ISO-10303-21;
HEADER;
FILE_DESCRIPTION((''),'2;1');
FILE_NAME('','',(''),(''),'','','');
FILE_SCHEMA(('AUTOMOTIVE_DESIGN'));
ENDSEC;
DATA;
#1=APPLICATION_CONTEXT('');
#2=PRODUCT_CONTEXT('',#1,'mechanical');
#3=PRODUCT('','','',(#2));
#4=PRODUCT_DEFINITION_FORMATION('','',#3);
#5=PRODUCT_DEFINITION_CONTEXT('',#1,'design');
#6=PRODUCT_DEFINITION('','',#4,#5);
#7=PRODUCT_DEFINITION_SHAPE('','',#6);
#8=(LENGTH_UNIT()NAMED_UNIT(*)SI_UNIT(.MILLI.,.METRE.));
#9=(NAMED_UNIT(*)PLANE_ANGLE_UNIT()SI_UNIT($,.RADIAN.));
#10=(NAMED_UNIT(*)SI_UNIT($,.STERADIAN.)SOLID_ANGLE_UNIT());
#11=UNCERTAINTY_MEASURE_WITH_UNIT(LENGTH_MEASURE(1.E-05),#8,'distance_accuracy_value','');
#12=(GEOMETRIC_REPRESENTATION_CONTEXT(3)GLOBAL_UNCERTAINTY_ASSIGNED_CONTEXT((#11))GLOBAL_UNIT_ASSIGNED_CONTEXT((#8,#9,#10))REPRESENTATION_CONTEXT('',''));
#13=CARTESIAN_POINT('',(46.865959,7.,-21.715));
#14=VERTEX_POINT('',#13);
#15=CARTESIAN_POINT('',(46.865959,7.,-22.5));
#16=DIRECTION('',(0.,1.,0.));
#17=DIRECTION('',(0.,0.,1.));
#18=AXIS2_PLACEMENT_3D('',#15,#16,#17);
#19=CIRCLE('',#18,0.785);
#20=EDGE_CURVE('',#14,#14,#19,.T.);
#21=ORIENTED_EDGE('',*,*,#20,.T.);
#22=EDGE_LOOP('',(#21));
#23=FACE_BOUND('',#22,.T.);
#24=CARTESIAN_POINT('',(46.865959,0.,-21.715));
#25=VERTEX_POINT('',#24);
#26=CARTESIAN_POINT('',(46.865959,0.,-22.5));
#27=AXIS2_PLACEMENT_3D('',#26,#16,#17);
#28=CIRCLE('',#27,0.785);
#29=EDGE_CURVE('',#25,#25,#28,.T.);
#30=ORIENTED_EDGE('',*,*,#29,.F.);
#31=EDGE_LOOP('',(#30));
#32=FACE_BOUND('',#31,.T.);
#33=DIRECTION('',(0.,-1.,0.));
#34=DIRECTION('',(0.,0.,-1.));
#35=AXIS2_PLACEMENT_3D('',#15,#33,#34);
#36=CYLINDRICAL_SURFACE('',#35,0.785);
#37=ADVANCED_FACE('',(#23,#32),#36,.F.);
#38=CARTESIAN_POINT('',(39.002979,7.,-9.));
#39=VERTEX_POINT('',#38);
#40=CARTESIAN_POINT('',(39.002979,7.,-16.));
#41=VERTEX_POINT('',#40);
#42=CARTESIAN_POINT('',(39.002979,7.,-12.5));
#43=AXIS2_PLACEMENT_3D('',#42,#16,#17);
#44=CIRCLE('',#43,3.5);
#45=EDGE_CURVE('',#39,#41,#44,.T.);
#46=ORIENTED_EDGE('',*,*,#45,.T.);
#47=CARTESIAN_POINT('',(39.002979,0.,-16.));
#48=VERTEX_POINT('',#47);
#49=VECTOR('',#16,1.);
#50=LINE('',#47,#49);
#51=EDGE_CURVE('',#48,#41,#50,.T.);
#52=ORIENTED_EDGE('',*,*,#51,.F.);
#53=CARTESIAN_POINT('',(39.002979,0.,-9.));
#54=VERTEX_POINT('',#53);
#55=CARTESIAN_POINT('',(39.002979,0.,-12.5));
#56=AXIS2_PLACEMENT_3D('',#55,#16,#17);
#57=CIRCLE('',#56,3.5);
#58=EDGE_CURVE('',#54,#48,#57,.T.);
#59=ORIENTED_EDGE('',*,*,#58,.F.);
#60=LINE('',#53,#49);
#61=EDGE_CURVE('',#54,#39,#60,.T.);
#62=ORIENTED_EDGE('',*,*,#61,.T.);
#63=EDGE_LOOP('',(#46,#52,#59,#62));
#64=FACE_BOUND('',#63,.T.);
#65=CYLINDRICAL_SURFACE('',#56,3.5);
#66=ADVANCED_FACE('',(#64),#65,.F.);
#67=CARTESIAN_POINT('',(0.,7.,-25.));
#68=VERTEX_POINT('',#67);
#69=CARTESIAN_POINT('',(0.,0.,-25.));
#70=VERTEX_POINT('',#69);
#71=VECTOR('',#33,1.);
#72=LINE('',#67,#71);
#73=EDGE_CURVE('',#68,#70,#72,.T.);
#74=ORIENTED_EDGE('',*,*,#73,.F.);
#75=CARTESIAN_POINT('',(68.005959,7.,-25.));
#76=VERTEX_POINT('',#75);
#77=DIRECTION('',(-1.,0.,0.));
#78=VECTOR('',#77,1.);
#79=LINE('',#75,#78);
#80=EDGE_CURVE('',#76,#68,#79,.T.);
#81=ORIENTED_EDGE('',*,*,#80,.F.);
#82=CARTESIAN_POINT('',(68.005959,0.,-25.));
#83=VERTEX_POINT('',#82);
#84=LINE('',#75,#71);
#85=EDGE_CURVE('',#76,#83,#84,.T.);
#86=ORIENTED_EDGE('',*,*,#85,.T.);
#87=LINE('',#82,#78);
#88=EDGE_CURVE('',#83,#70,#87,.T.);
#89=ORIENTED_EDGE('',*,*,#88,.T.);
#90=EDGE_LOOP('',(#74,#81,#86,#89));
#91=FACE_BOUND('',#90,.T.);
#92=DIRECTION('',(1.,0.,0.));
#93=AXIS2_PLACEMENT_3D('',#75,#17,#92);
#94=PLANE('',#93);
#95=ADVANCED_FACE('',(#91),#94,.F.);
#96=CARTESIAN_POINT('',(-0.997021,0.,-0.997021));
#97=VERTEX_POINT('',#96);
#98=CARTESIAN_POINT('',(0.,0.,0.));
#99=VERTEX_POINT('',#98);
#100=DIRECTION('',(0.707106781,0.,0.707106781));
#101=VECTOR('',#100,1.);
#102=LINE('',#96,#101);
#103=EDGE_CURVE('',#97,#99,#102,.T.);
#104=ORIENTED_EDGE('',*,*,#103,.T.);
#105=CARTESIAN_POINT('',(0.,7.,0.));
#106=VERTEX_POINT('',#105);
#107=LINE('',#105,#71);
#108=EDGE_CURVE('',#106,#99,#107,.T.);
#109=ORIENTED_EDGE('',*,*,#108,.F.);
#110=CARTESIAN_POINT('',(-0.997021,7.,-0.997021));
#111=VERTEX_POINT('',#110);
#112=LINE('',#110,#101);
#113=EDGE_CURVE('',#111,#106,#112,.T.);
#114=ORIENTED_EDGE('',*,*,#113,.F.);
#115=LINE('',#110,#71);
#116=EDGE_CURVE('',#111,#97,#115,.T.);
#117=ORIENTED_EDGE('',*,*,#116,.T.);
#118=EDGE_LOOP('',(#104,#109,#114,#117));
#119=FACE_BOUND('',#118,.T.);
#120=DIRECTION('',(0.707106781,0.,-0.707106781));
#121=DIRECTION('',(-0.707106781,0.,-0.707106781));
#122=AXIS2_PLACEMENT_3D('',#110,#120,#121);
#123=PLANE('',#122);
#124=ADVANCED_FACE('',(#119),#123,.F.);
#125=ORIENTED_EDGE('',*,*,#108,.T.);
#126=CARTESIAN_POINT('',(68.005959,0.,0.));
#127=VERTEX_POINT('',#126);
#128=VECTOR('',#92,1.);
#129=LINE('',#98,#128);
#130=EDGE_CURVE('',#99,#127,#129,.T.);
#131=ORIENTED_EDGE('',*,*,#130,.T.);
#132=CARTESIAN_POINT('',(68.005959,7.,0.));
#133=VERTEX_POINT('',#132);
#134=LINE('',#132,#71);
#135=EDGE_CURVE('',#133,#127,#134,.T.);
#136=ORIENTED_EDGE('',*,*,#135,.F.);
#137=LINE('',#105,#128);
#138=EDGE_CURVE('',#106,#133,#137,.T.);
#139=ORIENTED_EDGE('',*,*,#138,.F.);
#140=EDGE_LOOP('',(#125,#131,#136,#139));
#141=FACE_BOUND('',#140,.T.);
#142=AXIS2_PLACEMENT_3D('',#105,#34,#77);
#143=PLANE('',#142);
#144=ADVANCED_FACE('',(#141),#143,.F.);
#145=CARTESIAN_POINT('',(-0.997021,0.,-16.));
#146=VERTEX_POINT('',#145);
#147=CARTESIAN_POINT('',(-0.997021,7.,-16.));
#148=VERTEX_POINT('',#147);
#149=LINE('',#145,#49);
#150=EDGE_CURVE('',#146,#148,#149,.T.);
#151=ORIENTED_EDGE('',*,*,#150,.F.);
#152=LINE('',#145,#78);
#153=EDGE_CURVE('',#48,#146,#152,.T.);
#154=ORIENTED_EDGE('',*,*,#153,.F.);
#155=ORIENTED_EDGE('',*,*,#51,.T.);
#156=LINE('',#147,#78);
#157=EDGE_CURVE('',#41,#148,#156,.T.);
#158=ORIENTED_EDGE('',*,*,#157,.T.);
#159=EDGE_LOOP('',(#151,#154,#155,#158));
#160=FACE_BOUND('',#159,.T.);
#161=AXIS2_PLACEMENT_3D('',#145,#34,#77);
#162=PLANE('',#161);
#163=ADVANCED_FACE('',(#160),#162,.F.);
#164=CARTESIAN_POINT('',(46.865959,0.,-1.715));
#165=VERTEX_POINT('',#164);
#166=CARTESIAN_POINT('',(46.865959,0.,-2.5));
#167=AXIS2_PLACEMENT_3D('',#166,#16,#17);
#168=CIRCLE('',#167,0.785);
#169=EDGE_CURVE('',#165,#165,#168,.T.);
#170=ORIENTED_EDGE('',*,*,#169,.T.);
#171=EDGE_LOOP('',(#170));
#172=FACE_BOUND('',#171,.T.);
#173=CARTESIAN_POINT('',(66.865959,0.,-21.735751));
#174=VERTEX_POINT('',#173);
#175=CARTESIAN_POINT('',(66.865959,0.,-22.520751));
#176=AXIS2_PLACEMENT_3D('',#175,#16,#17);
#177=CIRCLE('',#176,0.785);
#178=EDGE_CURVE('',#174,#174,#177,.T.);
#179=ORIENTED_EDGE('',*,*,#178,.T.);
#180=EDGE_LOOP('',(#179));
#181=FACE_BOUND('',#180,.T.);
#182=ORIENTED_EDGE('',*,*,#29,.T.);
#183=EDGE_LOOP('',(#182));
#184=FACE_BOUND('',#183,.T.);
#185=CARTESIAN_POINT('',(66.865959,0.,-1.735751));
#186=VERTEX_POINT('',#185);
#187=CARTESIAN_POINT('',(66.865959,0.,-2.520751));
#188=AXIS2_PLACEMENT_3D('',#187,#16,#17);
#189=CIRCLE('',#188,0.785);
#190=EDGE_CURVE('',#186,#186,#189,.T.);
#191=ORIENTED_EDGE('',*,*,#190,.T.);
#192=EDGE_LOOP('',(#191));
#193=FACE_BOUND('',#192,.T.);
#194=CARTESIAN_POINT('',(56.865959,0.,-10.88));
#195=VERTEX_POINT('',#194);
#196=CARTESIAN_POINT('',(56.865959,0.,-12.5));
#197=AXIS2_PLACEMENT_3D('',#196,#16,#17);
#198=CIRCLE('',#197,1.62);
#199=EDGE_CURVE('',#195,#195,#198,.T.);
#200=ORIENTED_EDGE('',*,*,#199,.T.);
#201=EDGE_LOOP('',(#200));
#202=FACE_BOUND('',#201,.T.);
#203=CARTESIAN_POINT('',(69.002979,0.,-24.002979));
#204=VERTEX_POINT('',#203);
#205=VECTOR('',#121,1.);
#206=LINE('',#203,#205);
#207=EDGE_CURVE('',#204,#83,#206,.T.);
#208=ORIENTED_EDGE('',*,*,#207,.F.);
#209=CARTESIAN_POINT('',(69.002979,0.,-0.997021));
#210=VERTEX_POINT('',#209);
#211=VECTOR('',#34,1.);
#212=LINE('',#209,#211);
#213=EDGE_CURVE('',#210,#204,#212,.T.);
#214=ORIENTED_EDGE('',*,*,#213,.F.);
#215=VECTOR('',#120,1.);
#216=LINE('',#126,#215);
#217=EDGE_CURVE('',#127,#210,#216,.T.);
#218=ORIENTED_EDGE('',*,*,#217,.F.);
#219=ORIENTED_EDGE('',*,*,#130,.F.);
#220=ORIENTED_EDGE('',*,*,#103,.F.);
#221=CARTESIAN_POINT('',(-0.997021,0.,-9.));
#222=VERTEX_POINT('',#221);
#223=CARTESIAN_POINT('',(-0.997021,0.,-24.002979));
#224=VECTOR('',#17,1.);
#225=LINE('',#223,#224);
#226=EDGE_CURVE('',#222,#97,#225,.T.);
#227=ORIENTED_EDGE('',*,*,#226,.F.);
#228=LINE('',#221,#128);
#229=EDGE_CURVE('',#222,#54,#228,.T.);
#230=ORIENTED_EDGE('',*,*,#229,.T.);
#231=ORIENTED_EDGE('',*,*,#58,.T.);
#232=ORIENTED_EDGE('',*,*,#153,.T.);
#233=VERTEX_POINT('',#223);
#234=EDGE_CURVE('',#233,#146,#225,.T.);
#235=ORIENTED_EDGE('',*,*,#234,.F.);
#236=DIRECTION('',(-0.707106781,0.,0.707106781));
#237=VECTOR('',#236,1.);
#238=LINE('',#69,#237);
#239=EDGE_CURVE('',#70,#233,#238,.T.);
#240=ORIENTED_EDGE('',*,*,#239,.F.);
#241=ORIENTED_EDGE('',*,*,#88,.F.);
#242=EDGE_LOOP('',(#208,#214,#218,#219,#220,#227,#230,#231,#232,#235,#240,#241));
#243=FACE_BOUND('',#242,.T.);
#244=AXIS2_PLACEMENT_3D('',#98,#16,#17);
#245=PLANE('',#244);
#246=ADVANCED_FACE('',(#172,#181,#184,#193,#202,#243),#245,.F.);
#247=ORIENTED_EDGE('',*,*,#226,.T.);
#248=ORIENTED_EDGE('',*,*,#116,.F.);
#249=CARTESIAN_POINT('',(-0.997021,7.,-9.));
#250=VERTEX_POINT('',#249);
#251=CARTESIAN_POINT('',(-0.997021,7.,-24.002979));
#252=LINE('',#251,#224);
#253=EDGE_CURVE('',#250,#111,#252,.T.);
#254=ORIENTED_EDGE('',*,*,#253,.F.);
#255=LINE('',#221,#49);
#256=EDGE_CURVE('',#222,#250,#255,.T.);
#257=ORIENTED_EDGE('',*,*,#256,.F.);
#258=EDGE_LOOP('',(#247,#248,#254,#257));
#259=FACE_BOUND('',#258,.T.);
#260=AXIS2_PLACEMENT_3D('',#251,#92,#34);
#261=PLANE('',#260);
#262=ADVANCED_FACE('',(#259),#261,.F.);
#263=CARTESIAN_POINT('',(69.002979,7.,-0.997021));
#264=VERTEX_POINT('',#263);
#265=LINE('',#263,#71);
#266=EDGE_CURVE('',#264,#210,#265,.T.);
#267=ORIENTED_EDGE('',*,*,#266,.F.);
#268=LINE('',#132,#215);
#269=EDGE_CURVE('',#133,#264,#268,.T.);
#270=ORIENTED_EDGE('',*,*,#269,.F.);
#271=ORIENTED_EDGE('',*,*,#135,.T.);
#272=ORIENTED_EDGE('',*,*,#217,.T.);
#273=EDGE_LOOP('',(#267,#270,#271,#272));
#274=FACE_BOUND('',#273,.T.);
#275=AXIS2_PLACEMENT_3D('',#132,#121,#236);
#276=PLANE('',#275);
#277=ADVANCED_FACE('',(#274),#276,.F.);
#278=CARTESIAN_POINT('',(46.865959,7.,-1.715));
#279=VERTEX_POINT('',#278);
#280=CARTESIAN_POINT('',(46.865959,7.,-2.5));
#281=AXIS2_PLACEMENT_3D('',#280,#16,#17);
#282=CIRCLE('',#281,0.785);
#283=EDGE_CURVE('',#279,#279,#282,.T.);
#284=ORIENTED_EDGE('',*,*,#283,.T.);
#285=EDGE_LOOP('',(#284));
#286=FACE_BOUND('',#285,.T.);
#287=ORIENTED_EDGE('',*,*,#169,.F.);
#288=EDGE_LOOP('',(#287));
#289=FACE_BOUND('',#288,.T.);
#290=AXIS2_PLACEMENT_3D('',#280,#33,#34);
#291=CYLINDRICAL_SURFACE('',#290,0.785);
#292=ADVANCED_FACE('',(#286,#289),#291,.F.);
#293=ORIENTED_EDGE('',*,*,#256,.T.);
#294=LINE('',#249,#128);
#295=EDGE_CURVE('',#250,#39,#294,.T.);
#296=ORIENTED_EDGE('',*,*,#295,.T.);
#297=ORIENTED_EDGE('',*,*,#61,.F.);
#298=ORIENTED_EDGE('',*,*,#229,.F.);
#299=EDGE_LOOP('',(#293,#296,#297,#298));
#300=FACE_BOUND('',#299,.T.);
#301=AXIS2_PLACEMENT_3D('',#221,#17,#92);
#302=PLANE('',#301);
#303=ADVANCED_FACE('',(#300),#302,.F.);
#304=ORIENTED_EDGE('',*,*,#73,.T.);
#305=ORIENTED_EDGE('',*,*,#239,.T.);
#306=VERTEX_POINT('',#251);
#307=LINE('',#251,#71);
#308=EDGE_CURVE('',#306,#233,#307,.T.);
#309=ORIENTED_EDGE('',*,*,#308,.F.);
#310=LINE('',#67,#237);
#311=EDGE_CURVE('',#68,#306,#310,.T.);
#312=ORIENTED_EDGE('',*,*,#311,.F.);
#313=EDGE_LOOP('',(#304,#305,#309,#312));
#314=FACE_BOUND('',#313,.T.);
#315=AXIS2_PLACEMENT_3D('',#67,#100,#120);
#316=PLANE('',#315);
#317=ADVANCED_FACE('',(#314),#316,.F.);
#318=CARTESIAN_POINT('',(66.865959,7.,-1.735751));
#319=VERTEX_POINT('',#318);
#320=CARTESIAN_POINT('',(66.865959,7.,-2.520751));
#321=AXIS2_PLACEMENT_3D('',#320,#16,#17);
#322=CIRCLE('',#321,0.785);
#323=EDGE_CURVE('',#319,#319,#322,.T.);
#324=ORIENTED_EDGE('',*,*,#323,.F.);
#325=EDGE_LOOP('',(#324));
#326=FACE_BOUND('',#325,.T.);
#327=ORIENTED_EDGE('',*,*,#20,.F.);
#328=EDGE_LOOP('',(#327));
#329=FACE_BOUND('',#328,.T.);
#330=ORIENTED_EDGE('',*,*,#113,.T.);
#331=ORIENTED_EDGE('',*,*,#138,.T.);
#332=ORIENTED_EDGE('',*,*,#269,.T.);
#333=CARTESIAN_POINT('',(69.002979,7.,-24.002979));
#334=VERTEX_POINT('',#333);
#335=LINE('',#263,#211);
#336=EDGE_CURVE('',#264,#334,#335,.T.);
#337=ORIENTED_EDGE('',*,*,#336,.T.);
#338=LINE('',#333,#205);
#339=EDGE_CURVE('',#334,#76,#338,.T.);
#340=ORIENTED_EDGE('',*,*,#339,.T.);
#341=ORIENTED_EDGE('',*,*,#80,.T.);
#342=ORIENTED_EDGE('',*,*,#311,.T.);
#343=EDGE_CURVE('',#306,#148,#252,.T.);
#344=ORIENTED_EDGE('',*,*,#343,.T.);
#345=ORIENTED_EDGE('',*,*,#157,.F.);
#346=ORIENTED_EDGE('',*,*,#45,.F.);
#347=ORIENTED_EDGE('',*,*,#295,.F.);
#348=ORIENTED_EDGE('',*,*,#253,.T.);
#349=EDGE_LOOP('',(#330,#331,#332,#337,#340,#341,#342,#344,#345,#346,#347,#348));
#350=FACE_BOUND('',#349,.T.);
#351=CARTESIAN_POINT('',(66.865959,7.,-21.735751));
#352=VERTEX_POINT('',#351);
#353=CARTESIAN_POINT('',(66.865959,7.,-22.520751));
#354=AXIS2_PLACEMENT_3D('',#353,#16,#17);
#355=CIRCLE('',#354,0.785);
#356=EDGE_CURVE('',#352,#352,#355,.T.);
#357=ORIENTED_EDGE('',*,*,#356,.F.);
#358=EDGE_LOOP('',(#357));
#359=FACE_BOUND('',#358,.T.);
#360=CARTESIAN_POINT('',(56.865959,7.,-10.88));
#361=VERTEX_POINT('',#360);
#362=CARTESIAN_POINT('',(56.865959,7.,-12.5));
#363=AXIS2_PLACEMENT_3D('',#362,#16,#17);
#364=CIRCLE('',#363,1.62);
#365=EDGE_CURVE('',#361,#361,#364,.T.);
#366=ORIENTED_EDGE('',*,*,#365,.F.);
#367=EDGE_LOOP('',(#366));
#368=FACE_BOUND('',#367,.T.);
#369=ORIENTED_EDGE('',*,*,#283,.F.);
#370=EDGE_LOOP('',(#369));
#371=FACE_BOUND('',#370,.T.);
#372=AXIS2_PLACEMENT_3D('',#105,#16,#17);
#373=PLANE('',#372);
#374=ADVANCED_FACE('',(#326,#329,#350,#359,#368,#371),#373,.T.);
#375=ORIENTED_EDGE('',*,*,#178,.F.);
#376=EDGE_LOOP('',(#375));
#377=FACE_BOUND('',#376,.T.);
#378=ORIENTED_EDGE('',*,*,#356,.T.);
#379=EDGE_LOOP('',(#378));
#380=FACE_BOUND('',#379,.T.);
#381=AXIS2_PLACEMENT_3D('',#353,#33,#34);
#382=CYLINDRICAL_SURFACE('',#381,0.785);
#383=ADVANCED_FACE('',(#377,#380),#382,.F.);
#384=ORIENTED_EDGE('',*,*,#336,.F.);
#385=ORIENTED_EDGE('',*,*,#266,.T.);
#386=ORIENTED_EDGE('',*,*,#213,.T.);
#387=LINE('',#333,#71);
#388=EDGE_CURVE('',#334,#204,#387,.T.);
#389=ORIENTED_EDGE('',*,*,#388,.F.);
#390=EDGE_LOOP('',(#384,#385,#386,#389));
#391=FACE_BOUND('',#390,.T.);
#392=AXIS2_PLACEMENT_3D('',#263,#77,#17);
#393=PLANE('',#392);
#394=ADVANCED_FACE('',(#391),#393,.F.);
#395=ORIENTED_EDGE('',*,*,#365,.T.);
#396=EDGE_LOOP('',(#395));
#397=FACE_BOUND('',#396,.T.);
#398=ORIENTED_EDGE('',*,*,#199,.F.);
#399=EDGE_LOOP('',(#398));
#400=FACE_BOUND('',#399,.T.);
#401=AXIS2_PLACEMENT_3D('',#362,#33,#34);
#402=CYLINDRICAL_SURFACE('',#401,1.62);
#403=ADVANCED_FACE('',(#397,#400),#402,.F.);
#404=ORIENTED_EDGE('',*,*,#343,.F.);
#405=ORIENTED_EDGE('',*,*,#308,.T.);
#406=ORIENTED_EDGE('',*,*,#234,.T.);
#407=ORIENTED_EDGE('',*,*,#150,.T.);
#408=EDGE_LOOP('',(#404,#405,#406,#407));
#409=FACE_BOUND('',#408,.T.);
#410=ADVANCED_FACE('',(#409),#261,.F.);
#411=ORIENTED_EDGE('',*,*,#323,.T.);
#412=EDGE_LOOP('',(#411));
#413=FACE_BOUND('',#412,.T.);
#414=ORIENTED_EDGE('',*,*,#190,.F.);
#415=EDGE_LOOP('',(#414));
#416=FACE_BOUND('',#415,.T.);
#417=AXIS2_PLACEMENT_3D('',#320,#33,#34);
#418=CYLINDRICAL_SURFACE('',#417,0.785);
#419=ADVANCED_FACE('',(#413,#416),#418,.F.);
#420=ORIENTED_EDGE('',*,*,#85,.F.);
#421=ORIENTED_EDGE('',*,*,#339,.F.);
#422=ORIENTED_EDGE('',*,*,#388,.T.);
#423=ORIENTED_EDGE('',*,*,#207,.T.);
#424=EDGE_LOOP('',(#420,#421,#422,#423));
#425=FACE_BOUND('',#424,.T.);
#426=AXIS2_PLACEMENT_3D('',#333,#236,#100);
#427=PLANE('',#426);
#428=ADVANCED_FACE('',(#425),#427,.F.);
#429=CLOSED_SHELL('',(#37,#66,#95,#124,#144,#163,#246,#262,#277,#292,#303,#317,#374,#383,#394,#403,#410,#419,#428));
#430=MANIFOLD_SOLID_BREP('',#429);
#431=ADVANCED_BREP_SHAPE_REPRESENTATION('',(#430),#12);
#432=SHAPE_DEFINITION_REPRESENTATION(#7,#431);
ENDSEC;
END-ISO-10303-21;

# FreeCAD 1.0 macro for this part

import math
import FreeCAD as App
import Part
import Sketcher

doc = App.newDocument("Part")
body = doc.addObject("PartDesign::Body", "Body")

# Sketch on XZ plane
sketch1 = body.newObject("Sketcher::SketchObject", "Sketch")
sketch1.AttachmentSupport = (doc.getObject("XZ_Plane"), [""])
sketch1.MapMode = "FlatFace"
sketch1.addGeometry([
    Part.LineSegment(App.Vector(0, 0, 0), App.Vector(68.005959, 0, 0)),  # 0
    Part.LineSegment(App.Vector(68.005959, 0, 0), App.Vector(69.002979, -0.997021, 0)),  # 1
    Part.LineSegment(App.Vector(69.002979, -0.997021, 0), App.Vector(69.002979, -24.002979, 0)),  # 2
    Part.LineSegment(App.Vector(69.002979, -24.002979, 0), App.Vector(68.005959, -25, 0)),  # 3
    Part.LineSegment(App.Vector(68.005959, -25, 0), App.Vector(0, -25, 0)),  # 4
    Part.LineSegment(App.Vector(0, -25, 0), App.Vector(-0.997021, -24.002979, 0)),  # 5
    Part.LineSegment(App.Vector(-0.997021, -24.002979, 0), App.Vector(-0.997021, -0.997021, 0)),  # 6
    Part.LineSegment(App.Vector(-0.997021, -0.997021, 0), App.Vector(0, 0, 0)),  # 7
    Part.Circle(App.Vector(46.865959, -2.5, 0), App.Vector(0, 0, 1), 0.785),  # 8
    Part.Circle(App.Vector(56.865959, -12.5, 0), App.Vector(0, 0, 1), 1.62),  # 9
    Part.Circle(App.Vector(66.865959, -2.520751, 0), App.Vector(0, 0, 1), 0.785),  # 10
    Part.Circle(App.Vector(46.865959, -22.5, 0), App.Vector(0, 0, 1), 0.785),  # 11
    Part.Circle(App.Vector(66.865959, -22.520751, 0), App.Vector(0, 0, 1), 0.785),  # 12
], False)
sketch1.addConstraint([
    Sketcher.Constraint("Coincident", 0, 2, 1, 1),
    Sketcher.Constraint("Coincident", 1, 2, 2, 1),
    Sketcher.Constraint("Coincident", 2, 2, 3, 1),
    Sketcher.Constraint("Coincident", 3, 2, 4, 1),
    Sketcher.Constraint("Coincident", 4, 2, 5, 1),
    Sketcher.Constraint("Coincident", 5, 2, 6, 1),
    Sketcher.Constraint("Coincident", 6, 2, 7, 1),
    Sketcher.Constraint("Coincident", 7, 2, 0, 1),
    Sketcher.Constraint("Horizontal", 0),
    Sketcher.Constraint("Vertical", 2),
    Sketcher.Constraint("Horizontal", 4),
    Sketcher.Constraint("Vertical", 6),
    Sketcher.Constraint("Coincident", 7, 2, -1, 1),
    Sketcher.Constraint("Equal", 8, 10),
    Sketcher.Constraint("Equal", 10, 11),
    Sketcher.Constraint("Equal", 11, 12),
    Sketcher.Constraint("PointOnObject", 4, 2, -2),
    Sketcher.Constraint("Perpendicular", 1, 3),
    Sketcher.Constraint("Perpendicular", 3, 5),
    Sketcher.Constraint("Perpendicular", 5, 7),
    Sketcher.Constraint("Horizontal", 2, 2, 5, 2),
    Sketcher.Constraint("Horizontal", 1, 2, 6, 2),
    Sketcher.Constraint("Vertical", 8, 3, 11, 3),
    Sketcher.Constraint("Vertical", 10, 3, 12, 3),
    Sketcher.Constraint("Vertical", 0, 2, 3, 2),
    Sketcher.Constraint("Diameter", 8, 1.57),
    Sketcher.Constraint("Diameter", 9, 3.24),
    Sketcher.Constraint("DistanceY", 3, 2, -1, 1, 25.0),
    Sketcher.Constraint("DistanceX", 8, 3, 9, 3, 10.0),
    Sketcher.Constraint("DistanceY", 9, 3, 8, 3, 10.0),
    Sketcher.Constraint("DistanceX", 9, 3, 10, 3, 10.0),
    Sketcher.Constraint("DistanceY", 11, 3, 9, 3, 10.0),
    Sketcher.Constraint("DistanceY", 12, 3, 10, 3, 20.0),
    Sketcher.Constraint("DistanceY", 8, 3, -1, 1, 2.5),
    Sketcher.Constraint("Distance", 1, 1.41),
    Sketcher.Constraint("DistanceX", 10, 3, 0, 2, 1.14),
    Sketcher.Constraint("DistanceX", 0, 1, 0, 2, 68.005959),
    Sketcher.Constraint("DistanceY", 10, 3, -1, 1, 2.520751),
])
pad1 = body.newObject("PartDesign::Pad", "Pad")
pad1.Profile = sketch1
pad1.Length = 7
pad1.Reversed = True

# Sketch on XZ plane
sketch2 = body.newObject("Sketcher::SketchObject", "Sketch001")
sketch2.AttachmentSupport = (doc.getObject("XZ_Plane"), [""])
sketch2.MapMode = "FlatFace"
sketch2.AttachmentOffset = App.Placement(App.Vector(0, 0, -7), App.Rotation())
sketch2.addGeometry([
    Part.LineSegment(App.Vector(39.002979, -16, 0), App.Vector(-0.997021, -16, 0)),
    Part.ArcOfCircle(Part.Circle(App.Vector(-0.997021, -12.5, 0), App.Vector(0, 0, 1), 3.5), math.radians(90), math.radians(270)),
    Part.LineSegment(App.Vector(-0.997021, -9, 0), App.Vector(39.002979, -9, 0)),
    Part.ArcOfCircle(Part.Circle(App.Vector(39.002979, -12.5, 0), App.Vector(0, 0, 1), 3.5), math.radians(-90), math.radians(90)),
], False)
sketch2.addConstraint([
    Sketcher.Constraint("Tangent", 0, 2, 1, 2),
    Sketcher.Constraint("Tangent", 1, 1, 2, 1),
    Sketcher.Constraint("Tangent", 2, 2, 3, 2),
    Sketcher.Constraint("Tangent", 3, 1, 0, 1),
    Sketcher.Constraint("Horizontal", 0),
    Sketcher.Constraint("Horizontal", 2),
    Sketcher.Constraint("Radius", 1, 3.5),
    Sketcher.Constraint("DistanceX", 0, 2, 0, 1, 40.0),
    Sketcher.Constraint("DistanceY", 0, 2, -1, 1, 16.0),
    Sketcher.Constraint("DistanceX", 1, 3, -1, 1, 0.997021),
])
pocket1 = body.newObject("PartDesign::Pocket", "Pocket")
pocket1.Profile = sketch2
pocket1.Length = 7
pocket1.Reversed = True

doc.recompute()
